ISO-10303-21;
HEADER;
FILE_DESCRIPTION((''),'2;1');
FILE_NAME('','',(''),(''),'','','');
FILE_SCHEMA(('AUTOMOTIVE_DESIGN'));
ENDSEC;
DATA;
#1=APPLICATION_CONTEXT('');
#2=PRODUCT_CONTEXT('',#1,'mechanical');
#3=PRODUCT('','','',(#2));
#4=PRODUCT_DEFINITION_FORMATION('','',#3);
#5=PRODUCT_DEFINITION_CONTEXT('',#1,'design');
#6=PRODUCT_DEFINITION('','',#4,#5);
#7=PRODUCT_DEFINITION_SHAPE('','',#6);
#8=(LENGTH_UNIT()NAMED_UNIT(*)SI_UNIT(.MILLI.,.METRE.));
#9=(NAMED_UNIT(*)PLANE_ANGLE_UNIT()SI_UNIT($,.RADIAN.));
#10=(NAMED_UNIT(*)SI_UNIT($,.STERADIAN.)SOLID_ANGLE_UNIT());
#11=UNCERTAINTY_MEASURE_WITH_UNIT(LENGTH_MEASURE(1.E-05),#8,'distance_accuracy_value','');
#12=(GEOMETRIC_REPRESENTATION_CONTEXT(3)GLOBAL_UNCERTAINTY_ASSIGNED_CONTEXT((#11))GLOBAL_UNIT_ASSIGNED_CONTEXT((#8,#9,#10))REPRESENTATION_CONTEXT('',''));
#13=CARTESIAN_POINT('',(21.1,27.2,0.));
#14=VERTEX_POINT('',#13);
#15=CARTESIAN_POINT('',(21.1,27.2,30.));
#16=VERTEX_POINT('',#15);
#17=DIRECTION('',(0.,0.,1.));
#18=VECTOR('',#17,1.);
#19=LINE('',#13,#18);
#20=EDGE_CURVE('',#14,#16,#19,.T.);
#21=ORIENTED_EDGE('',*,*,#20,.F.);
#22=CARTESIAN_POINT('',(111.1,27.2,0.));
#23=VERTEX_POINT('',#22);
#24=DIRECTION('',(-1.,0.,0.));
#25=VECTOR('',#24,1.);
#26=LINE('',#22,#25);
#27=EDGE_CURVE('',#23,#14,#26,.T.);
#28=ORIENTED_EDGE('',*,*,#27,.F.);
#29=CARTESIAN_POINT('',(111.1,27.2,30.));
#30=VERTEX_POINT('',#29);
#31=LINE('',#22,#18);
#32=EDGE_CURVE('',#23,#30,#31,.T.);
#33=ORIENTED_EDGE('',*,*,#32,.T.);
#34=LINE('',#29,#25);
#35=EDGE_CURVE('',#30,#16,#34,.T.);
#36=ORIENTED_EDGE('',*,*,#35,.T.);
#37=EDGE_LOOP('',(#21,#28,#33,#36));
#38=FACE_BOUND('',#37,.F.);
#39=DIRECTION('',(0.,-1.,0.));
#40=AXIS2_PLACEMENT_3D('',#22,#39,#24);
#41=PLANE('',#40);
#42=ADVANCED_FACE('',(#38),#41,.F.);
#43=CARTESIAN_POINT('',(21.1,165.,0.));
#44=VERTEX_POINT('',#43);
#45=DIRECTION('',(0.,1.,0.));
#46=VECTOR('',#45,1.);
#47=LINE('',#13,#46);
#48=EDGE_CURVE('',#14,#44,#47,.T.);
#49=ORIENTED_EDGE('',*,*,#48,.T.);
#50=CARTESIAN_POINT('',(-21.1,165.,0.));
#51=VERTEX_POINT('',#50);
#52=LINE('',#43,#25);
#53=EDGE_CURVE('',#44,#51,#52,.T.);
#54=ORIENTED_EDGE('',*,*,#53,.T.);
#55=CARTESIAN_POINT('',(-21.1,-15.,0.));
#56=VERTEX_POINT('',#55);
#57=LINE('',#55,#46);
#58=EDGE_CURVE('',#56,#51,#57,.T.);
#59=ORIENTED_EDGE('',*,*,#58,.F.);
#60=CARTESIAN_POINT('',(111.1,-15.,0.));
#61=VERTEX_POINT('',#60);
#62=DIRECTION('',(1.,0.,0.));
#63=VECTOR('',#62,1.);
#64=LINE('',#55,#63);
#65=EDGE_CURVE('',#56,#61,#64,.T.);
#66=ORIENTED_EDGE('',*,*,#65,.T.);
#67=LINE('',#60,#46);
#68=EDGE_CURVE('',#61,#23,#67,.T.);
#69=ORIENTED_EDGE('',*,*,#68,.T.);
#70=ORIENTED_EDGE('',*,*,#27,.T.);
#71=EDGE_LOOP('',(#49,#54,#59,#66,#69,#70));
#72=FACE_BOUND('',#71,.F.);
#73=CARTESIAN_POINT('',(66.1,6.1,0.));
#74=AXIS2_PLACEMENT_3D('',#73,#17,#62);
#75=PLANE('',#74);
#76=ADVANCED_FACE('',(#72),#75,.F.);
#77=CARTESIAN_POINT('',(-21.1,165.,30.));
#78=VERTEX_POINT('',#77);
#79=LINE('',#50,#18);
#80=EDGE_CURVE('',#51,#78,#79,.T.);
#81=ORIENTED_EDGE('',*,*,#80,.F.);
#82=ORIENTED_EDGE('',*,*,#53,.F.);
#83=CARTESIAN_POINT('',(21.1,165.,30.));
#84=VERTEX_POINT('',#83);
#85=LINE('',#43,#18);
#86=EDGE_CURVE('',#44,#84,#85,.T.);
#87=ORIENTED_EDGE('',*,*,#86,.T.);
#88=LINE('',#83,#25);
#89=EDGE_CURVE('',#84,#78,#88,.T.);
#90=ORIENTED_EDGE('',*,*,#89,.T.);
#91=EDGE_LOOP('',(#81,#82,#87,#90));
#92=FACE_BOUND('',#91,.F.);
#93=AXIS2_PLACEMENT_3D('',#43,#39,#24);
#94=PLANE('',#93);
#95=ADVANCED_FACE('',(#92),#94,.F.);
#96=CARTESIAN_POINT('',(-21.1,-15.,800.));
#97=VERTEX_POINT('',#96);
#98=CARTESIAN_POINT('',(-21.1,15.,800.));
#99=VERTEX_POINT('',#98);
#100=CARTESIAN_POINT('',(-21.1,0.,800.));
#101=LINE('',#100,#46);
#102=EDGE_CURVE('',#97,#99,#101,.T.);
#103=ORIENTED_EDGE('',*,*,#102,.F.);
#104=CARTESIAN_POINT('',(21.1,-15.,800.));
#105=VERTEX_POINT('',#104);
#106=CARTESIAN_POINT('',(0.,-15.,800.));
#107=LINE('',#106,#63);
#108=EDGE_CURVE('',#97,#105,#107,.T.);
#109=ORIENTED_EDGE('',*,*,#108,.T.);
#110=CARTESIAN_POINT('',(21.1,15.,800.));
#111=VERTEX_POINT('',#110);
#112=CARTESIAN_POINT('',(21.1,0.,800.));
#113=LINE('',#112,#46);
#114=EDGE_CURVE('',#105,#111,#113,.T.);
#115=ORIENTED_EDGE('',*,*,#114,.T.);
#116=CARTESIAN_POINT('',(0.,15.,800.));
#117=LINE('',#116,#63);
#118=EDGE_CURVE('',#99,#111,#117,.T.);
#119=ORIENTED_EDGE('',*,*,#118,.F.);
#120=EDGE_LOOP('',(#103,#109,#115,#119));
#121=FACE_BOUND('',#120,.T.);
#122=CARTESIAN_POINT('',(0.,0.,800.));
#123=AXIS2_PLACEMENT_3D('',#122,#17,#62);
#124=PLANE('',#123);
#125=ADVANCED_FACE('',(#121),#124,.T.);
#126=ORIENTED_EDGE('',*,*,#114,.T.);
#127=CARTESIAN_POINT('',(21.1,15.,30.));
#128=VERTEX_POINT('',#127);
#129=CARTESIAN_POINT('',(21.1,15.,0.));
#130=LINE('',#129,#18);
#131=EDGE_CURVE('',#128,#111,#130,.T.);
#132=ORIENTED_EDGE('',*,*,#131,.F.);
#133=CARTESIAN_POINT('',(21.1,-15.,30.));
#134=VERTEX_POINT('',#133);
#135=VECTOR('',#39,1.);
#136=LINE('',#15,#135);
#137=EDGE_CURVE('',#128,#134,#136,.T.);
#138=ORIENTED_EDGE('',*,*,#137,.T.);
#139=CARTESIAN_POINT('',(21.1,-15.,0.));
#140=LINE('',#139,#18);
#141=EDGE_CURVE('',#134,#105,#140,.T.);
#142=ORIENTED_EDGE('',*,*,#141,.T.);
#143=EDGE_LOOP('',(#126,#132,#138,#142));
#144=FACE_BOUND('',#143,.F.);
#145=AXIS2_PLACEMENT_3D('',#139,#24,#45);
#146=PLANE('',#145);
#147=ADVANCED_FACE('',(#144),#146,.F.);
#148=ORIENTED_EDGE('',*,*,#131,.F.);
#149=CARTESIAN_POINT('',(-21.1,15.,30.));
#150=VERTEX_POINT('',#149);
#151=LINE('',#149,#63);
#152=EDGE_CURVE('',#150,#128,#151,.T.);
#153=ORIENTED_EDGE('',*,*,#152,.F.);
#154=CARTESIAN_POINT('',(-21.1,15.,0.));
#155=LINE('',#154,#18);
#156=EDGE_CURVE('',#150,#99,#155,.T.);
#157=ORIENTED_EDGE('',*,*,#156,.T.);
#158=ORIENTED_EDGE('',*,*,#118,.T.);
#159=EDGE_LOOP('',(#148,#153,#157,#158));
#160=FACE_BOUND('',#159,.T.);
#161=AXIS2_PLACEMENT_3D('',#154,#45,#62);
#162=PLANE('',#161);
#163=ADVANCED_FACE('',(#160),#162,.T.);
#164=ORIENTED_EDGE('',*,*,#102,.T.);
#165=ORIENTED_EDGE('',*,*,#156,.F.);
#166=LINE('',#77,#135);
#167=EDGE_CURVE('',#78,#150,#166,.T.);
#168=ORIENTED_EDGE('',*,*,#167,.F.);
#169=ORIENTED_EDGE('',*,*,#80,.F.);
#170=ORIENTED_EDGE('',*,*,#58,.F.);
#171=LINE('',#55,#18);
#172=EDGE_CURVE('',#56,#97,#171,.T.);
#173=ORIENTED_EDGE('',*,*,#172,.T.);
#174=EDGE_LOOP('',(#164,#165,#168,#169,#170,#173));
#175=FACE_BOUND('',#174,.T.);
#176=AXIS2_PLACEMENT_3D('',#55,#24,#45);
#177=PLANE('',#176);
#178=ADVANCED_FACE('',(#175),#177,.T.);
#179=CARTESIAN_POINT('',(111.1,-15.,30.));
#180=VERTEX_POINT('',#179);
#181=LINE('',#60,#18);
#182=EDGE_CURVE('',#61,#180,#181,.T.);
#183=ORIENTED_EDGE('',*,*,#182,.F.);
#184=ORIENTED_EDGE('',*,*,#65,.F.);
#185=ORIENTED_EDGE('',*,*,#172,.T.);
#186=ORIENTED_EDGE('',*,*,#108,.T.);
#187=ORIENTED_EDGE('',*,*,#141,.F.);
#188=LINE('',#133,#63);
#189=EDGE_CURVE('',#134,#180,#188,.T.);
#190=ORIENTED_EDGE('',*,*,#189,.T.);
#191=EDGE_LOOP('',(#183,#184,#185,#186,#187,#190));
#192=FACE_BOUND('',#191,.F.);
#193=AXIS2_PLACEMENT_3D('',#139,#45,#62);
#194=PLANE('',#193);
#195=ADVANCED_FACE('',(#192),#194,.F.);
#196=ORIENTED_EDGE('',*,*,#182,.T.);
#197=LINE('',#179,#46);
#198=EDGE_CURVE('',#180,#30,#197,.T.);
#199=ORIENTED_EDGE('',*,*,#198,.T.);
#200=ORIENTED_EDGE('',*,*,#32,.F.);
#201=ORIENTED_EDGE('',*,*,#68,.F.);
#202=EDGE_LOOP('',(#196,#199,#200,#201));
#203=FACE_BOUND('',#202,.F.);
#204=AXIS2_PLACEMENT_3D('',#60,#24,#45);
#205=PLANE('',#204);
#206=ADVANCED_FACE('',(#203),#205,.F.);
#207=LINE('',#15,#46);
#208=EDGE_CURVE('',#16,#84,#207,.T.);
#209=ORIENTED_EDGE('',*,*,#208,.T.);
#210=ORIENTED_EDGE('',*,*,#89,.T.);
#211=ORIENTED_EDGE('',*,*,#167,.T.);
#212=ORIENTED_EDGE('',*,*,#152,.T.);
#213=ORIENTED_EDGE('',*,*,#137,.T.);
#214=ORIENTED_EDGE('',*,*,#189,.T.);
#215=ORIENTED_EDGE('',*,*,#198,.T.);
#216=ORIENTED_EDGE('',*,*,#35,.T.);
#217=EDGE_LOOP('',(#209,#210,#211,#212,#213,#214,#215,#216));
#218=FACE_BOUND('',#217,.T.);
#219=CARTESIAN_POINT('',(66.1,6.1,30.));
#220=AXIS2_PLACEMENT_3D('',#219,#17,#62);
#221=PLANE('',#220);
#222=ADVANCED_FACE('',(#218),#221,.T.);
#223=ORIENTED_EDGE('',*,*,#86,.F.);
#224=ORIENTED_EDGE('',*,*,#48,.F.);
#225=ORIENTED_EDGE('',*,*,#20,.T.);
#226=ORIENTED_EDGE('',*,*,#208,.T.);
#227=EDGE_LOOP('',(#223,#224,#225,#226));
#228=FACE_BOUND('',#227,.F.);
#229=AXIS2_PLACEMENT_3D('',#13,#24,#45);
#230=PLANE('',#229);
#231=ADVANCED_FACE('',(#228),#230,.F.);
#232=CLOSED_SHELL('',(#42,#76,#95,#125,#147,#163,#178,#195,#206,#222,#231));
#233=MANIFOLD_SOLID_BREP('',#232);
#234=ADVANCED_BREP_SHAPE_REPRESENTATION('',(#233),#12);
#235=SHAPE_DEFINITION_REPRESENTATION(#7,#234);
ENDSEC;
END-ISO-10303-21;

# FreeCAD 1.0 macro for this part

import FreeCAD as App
import Part
import Sketcher


def add_polygon(sketch, points):
    """Adds a closed chain of lines whose ends are joined by coincident constraints."""
    first, n = sketch.GeometryCount, len(points)
    for a, b in zip(points, points[1:] + points[:1]):
        sketch.addGeometry(Part.LineSegment(App.Vector(*a, 0), App.Vector(*b, 0)), False)
    for i in range(n):
        sketch.addConstraint(Sketcher.Constraint("Coincident", first + i, 2, first + (i + 1) % n, 1))

doc = App.newDocument("Part")
body = doc.addObject("PartDesign::Body", "Body")

sketch1 = body.newObject("Sketcher::SketchObject", "Sketch")
sketch1.AttachmentSupport = (doc.getObject("XY_Plane"), [""])
sketch1.MapMode = "FlatFace"
add_polygon(sketch1, [(-21, 15), (-21, -15), (21, -15), (21, 15)])
sketch1.addConstraint([
    Sketcher.Constraint("Vertical", 0),
    Sketcher.Constraint("Horizontal", 1),
    Sketcher.Constraint("Vertical", 2),
    Sketcher.Constraint("Horizontal", 3),
    Sketcher.Constraint("Symmetric", 0, 2, 2, 2, -1, 1),
    Sketcher.Constraint("DistanceY", 0, 2, 0, 1, 30.0),
    Sketcher.Constraint("DistanceX", 1, 1, 1, 2, 42.2),
])
pad1 = body.newObject("PartDesign::Pad", "Pad")
pad1.Profile = sketch1
pad1.Length = 800

sketch2 = body.newObject("Sketcher::SketchObject", "Sketch001")
sketch2.AttachmentSupport = (doc.getObject("XY_Plane"), [""])
sketch2.MapMode = "FlatFace"
add_polygon(sketch2, [(21, -15), (111, -15), (111, 27), (21, 27), (21, 165), (-21, 165), (-21, 15), (21, 15)])
sketch2.addConstraint([
    Sketcher.Constraint("Horizontal", 0),
    Sketcher.Constraint("Vertical", 1),
    Sketcher.Constraint("Horizontal", 2),
    Sketcher.Constraint("Vertical", 3),
    Sketcher.Constraint("Horizontal", 4),
    Sketcher.Constraint("Vertical", 5),
    Sketcher.Constraint("Horizontal", 6),
    Sketcher.Constraint("Vertical", 7),
    Sketcher.Constraint("Symmetric", 5, 2, 7, 2, -1, 1),
    Sketcher.Constraint("Vertical", 3, 2, 6, 2),
    Sketcher.Constraint("Equal", 6, 1),
    Sketcher.Constraint("DistanceX", 0, 1, 0, 2, 90.0),
    Sketcher.Constraint("DistanceY", 5, 2, 5, 1, 150.0),
    Sketcher.Constraint("DistanceY", 7, 2, 7, 1, 30.0),
    Sketcher.Constraint("DistanceX", 4, 2, 4, 1, 42.2),
])
pad2 = body.newObject("PartDesign::Pad", "Pad001")
pad2.Profile = sketch2
pad2.Length = 30

doc.recompute()
